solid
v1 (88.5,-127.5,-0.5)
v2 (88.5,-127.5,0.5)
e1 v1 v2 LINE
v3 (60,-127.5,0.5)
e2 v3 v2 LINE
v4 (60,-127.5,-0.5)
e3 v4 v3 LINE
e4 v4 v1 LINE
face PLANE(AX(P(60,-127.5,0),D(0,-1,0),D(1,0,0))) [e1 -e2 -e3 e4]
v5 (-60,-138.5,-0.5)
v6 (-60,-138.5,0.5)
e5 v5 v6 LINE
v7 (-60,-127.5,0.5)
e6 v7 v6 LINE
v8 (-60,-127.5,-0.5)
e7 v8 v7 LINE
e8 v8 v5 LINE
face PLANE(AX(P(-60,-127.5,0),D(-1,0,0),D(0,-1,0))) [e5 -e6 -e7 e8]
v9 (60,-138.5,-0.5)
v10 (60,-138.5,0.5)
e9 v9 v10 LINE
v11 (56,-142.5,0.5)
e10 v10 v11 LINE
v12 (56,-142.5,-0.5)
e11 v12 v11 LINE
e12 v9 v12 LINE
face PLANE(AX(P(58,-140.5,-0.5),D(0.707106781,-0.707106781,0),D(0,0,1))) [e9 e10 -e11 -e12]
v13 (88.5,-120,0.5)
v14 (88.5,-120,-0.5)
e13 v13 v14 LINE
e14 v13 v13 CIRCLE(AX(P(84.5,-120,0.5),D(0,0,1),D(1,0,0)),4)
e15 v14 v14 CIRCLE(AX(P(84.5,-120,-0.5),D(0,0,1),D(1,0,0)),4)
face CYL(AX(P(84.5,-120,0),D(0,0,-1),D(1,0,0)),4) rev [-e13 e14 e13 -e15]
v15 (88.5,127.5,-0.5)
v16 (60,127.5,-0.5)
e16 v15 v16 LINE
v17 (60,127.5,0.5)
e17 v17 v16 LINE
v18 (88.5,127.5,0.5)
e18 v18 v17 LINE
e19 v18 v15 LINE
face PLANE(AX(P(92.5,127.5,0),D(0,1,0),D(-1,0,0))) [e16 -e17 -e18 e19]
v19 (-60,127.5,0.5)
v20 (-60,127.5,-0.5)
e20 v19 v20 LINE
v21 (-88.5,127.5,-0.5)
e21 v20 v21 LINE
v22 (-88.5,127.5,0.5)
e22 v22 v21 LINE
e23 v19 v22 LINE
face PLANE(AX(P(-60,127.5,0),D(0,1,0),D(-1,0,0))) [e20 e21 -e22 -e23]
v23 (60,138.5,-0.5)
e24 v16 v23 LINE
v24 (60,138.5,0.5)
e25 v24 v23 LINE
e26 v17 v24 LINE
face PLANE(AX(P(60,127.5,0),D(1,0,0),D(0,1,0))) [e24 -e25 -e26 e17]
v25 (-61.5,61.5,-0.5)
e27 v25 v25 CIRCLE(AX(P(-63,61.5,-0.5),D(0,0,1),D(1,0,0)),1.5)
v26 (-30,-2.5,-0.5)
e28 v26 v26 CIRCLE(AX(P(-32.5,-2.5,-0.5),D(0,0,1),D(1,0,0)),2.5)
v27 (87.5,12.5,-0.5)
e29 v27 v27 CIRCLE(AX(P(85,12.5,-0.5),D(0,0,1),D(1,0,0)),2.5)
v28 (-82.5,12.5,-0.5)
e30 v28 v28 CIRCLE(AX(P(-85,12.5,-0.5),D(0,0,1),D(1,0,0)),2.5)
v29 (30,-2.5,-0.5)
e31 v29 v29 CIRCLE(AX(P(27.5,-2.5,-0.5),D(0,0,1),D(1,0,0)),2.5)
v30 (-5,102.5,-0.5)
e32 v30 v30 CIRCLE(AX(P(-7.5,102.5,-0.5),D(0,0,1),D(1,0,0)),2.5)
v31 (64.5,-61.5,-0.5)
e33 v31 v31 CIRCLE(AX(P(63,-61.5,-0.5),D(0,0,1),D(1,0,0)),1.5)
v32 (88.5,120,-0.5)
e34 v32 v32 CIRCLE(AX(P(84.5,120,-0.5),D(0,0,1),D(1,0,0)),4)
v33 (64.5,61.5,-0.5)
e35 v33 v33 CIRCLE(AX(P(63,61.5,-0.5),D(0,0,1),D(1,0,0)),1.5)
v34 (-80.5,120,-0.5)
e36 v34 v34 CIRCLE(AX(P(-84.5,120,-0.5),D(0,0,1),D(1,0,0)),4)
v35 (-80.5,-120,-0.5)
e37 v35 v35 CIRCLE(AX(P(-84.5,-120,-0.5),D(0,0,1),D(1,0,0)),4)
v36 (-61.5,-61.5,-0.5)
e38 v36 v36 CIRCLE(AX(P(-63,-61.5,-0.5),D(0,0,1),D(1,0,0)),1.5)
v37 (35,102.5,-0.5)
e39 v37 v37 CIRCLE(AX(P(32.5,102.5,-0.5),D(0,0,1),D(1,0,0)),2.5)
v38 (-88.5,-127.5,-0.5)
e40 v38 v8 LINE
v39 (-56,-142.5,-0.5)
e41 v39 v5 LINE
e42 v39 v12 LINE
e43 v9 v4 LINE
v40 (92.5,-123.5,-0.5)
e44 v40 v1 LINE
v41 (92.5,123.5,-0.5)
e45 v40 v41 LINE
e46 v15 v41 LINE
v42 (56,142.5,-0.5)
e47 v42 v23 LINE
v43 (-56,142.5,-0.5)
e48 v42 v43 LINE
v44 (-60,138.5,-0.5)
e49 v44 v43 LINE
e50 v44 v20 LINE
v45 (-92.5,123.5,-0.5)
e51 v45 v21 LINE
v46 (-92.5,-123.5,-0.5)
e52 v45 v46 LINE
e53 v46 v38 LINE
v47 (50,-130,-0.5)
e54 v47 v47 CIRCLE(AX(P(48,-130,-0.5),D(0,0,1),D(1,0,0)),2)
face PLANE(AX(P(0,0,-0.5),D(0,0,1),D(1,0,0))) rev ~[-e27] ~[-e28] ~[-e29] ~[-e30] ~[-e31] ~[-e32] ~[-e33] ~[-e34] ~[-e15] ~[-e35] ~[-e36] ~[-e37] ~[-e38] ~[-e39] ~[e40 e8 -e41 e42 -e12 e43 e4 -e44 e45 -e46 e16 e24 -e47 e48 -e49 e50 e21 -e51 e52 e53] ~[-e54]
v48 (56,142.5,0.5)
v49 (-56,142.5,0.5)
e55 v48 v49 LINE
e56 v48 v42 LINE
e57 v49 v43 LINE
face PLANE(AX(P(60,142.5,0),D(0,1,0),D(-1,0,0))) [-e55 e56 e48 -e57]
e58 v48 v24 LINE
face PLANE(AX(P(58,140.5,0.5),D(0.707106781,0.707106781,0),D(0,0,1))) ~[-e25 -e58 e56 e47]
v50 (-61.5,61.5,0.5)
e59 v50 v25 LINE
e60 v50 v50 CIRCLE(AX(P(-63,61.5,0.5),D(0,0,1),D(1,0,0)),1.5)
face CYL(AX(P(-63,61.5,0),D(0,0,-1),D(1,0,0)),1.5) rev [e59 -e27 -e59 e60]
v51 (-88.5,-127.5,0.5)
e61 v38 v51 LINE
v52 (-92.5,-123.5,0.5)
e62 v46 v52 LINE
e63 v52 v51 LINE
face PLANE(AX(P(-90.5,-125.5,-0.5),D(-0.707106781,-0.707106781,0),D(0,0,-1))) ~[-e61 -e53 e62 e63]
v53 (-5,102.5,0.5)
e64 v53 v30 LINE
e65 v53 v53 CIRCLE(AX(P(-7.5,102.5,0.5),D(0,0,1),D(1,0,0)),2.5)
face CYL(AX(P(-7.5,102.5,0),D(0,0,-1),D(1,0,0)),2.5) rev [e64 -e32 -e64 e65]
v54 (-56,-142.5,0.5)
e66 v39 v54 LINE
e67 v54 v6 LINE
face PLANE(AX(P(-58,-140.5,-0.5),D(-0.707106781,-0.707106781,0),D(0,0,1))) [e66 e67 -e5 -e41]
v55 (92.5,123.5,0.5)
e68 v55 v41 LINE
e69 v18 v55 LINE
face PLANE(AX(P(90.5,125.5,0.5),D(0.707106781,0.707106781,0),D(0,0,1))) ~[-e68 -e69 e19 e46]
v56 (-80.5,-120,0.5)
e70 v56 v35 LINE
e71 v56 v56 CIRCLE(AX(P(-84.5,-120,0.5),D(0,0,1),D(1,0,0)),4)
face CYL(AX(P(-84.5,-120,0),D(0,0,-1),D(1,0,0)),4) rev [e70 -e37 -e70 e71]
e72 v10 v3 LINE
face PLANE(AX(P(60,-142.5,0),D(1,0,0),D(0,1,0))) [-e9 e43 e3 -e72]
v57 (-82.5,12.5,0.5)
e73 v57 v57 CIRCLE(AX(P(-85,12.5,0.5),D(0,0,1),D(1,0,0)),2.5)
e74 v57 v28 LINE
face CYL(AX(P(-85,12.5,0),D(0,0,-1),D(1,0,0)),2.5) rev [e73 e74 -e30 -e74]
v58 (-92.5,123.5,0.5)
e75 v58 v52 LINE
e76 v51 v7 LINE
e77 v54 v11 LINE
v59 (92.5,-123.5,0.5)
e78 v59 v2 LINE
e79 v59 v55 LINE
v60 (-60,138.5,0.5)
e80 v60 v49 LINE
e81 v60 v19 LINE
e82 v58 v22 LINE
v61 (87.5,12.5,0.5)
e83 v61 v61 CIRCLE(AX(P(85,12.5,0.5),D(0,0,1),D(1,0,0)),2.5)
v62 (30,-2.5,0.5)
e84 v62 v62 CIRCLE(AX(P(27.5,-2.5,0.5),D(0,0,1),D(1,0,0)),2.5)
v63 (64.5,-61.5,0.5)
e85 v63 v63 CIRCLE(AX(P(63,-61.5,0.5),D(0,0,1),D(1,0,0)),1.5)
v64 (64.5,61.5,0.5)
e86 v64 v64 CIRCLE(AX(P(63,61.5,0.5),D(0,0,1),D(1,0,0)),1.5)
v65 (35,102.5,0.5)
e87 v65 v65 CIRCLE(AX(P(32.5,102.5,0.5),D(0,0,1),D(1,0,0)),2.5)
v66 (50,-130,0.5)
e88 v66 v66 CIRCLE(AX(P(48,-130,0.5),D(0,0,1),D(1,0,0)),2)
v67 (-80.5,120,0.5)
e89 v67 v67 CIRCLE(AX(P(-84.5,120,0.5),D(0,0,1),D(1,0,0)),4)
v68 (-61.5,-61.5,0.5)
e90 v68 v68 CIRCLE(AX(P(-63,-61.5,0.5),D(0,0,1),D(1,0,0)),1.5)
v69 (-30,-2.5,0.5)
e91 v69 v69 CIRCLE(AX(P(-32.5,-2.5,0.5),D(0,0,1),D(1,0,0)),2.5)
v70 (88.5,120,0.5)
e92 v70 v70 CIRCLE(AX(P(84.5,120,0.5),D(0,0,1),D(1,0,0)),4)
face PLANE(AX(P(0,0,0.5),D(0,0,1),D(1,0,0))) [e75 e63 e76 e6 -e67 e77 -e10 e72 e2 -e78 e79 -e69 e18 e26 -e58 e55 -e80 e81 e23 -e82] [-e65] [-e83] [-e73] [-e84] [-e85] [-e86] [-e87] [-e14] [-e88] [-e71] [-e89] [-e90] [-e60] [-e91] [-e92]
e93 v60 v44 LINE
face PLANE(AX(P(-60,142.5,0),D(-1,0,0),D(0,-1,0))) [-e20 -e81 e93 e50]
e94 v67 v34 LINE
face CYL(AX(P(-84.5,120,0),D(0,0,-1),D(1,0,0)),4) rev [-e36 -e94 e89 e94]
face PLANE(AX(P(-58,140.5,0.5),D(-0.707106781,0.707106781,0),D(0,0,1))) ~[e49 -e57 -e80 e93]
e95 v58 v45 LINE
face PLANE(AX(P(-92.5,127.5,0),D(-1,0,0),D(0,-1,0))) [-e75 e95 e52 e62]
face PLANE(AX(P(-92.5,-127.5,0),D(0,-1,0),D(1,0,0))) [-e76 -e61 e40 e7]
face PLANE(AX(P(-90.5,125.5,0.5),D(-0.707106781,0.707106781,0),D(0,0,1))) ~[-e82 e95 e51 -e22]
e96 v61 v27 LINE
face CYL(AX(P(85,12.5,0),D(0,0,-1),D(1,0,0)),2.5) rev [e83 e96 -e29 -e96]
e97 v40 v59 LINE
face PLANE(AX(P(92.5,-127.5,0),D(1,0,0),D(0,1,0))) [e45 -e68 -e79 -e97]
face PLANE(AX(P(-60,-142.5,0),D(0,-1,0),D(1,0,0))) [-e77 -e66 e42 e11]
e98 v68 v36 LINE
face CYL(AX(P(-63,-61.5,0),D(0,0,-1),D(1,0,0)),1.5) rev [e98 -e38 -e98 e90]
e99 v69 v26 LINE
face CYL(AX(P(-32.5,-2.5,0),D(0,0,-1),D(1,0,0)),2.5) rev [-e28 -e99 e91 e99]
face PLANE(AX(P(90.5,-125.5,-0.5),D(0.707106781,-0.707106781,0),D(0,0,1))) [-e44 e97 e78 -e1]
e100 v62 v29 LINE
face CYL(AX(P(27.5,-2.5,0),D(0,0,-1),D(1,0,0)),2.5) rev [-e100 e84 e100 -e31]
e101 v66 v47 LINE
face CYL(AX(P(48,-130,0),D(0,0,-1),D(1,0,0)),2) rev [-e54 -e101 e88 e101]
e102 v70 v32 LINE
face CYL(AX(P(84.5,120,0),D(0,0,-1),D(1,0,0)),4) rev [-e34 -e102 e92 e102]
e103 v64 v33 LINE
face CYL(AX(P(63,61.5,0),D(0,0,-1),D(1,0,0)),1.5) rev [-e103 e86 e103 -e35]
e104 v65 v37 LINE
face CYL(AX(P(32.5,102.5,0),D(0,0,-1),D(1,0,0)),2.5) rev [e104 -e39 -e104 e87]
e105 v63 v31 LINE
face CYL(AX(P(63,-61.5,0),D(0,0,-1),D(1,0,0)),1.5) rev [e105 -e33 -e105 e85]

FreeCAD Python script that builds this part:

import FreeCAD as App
import Part
import Sketcher

V = App.Vector
Q = App.Units.Quantity


def edges_at(feature, points):
    """Names of the edges that pass closest to the given points."""
    edges = feature.Shape.Edges
    near = lambda p: min(range(len(edges)), key=lambda i: edges[i].distToShape(Part.Vertex(*p))[0])
    return sorted({f"Edge{near(p) + 1}" for p in points})

doc = App.newDocument("Part")
body = doc.addObject("PartDesign::Body", "Body")

# Sketch on XY plane
sketch1 = doc.addObject("Sketcher::SketchObject", "Sketch")
body.addObject(sketch1)
sketch1.AttachmentSupport = (doc.XY_Plane, [""])
sketch1.MapMode = "FlatFace"
sketch1.addGeometry([
    Part.LineSegment(V(-92.5, 127.5, 0), V(-92.5, -127.5, 0)),  # 0
    Part.LineSegment(V(-92.5, -127.5, 0), V(-60, -127.5, 0)),  # 1
    Part.LineSegment(V(-60, -127.5, 0), V(-60, -142.5, 0)),  # 2
    Part.LineSegment(V(-60, -142.5, 0), V(60, -142.5, 0)),  # 3
    Part.LineSegment(V(60, -142.5, 0), V(60, -127.5, 0)),  # 4
    Part.LineSegment(V(60, -127.5, 0), V(92.5, -127.5, 0)),  # 5
    Part.LineSegment(V(92.5, -127.5, 0), V(92.5, 127.5, 0)),  # 6
    Part.LineSegment(V(92.5, 127.5, 0), V(60, 127.5, 0)),  # 7
    Part.LineSegment(V(60, 127.5, 0), V(60, 142.5, 0)),  # 8
    Part.LineSegment(V(60, 142.5, 0), V(-60, 142.5, 0)),  # 9
    Part.LineSegment(V(-60, 142.5, 0), V(-60, 127.5, 0)),  # 10
    Part.LineSegment(V(-60, 127.5, 0), V(-92.5, 127.5, 0)),  # 11
    Part.Circle(V(-84.5, -120, 0), V(0, 0, 1), 4),  # 12
    Part.Circle(V(-63, -61.5, 0), V(0, 0, 1), 1.5),  # 13
    Part.Circle(V(48, -130, 0), V(0, 0, 1), 2),  # 14
    Part.Circle(V(84.5, -120, 0), V(0, 0, 1), 4),  # 15
    Part.Circle(V(63, -61.5, 0), V(0, 0, 1), 1.5),  # 16
    Part.Circle(V(-85, 12.5, 0), V(0, 0, 1), 2.5),  # 17
    Part.Circle(V(-32.5, -2.5, 0), V(0, 0, 1), 2.5),  # 18
    Part.Circle(V(-63, 61.5, 0), V(0, 0, 1), 1.5),  # 19
    Part.Circle(V(-84.5, 120, 0), V(0, 0, 1), 4),  # 20
    Part.Circle(V(-7.5, 102.5, 0), V(0, 0, 1), 2.5),  # 21
    Part.Circle(V(27.5, -2.5, 0), V(0, 0, 1), 2.5),  # 22
    Part.Circle(V(85, 12.5, 0), V(0, 0, 1), 2.5),  # 23
    Part.Circle(V(32.5, 102.5, 0), V(0, 0, 1), 2.5),  # 24
    Part.Circle(V(63, 61.5, 0), V(0, 0, 1), 1.5),  # 25
    Part.Circle(V(84.5, 120, 0), V(0, 0, 1), 4),  # 26
], False)
sketch1.addConstraint([
    Sketcher.Constraint("Coincident", 0, 2, 1, 1),
    Sketcher.Constraint("Coincident", 1, 2, 2, 1),
    Sketcher.Constraint("Coincident", 2, 2, 3, 1),
    Sketcher.Constraint("Coincident", 3, 2, 4, 1),
    Sketcher.Constraint("Coincident", 4, 2, 5, 1),
    Sketcher.Constraint("Coincident", 5, 2, 6, 1),
    Sketcher.Constraint("Coincident", 6, 2, 7, 1),
    Sketcher.Constraint("Coincident", 7, 2, 8, 1),
    Sketcher.Constraint("Coincident", 8, 2, 9, 1),
    Sketcher.Constraint("Coincident", 9, 2, 10, 1),
    Sketcher.Constraint("Coincident", 10, 2, 11, 1),
    Sketcher.Constraint("Coincident", 11, 2, 0, 1),
    Sketcher.Constraint("Vertical", 0),
    Sketcher.Constraint("Horizontal", 1),
    Sketcher.Constraint("Vertical", 2),
    Sketcher.Constraint("Horizontal", 3),
    Sketcher.Constraint("Vertical", 4),
    Sketcher.Constraint("Horizontal", 5),
    Sketcher.Constraint("Vertical", 6),
    Sketcher.Constraint("Horizontal", 7),
    Sketcher.Constraint("Vertical", 8),
    Sketcher.Constraint("Horizontal", 9),
    Sketcher.Constraint("Vertical", 10),
    Sketcher.Constraint("Horizontal", 11),
    Sketcher.Constraint("Equal", 12, 15),
    Sketcher.Constraint("Equal", 13, 16),
    Sketcher.Constraint("Equal", 17, 18),
    Sketcher.Constraint("Equal", 16, 19),
    Sketcher.Constraint("Equal", 15, 20),
    Sketcher.Constraint("Equal", 18, 21),
    Sketcher.Constraint("Equal", 21, 22),
    Sketcher.Constraint("Equal", 22, 23),
    Sketcher.Constraint("Equal", 23, 24),
    Sketcher.Constraint("Equal", 19, 25),
    Sketcher.Constraint("Equal", 20, 26),
    Sketcher.Constraint("Symmetric", 16, 3, 19, 3, -1, 1),
    Sketcher.Constraint("Symmetric", 15, 3, 20, 3, -1, 1),
    Sketcher.Constraint("Symmetric", 13, 3, 25, 3, -1, 1),
    Sketcher.Constraint("Symmetric", 12, 3, 26, 3, -1, 1),
    Sketcher.Constraint("Symmetric", 0, 2, 6, 2, -1, 1),
    Sketcher.Constraint("Symmetric", 2, 2, 8, 2, -1, 1),
    Sketcher.Constraint("Symmetric", 4, 2, 10, 2, -1, 1),
    Sketcher.Constraint("Symmetric", 12, 3, 15, 3, -2),
    Sketcher.Constraint("Symmetric", 13, 3, 16, 3, -2),
    Sketcher.Constraint("Symmetric", 17, 3, 23, 3, -2),
    Sketcher.Constraint("Symmetric", 1, 2, 4, 2, -2),
    Sketcher.Constraint("Horizontal", 18, 3, 22, 3),
    Sketcher.Constraint("Horizontal", 21, 3, 24, 3),
    Sketcher.Constraint("Diameter", 12, Q("8 mm")),
    Sketcher.Constraint("Diameter", 13, Q("3 mm")),
    Sketcher.Constraint("Diameter", 14, Q("4 mm")),
    Sketcher.Constraint("Diameter", 17, Q("5 mm")),
    Sketcher.Constraint("DistanceX", 3, 1, 3, 2, Q("120 mm")),
    Sketcher.Constraint("DistanceY", 0, 2, 0, 1, Q("255 mm")),
    Sketcher.Constraint("DistanceY", 2, 2, 2, 1, Q("15 mm")),
    Sketcher.Constraint("DistanceX", 1, 1, 1, 2, Q("32.5 mm")),
    Sketcher.Constraint("DistanceY", 12, 3, -1, 1, Q("120 mm")),
    Sketcher.Constraint("DistanceX", 13, 3, -1, 1, Q("63 mm")),
    Sketcher.Constraint("DistanceX", -1, 1, 14, 3, Q("48 mm")),
    Sketcher.Constraint("DistanceY", 14, 3, -1, 1, Q("130 mm")),
    Sketcher.Constraint("DistanceX", 17, 3, -1, 1, Q("85 mm")),
    Sketcher.Constraint("DistanceX", 12, 3, 15, 3, Q("169 mm")),
    Sketcher.Constraint("DistanceY", 13, 3, 17, 3, Q("74 mm")),
    Sketcher.Constraint("DistanceY", 18, 3, 17, 3, Q("15 mm")),
    Sketcher.Constraint("DistanceX", 12, 3, 18, 3, Q("52 mm")),
    Sketcher.Constraint("DistanceY", 17, 3, 19, 3, Q("49 mm")),
    Sketcher.Constraint("DistanceY", 19, 3, 21, 3, Q("41 mm")),
    Sketcher.Constraint("DistanceX", 20, 3, 21, 3, Q("77 mm")),
    Sketcher.Constraint("DistanceX", 18, 3, 22, 3, Q("60 mm")),
    Sketcher.Constraint("DistanceX", 21, 3, 24, 3, Q("40 mm")),
])
pad1 = doc.addObject("PartDesign::Pad", "Pad")
body.addObject(pad1)
pad1.Profile = sketch1
pad1.Length = 1
pad1.Midplane = True
doc.recompute()

chamfer = doc.addObject("PartDesign::Chamfer", "Chamfer")
body.addObject(chamfer)
chamfer.Base = (pad1, edges_at(pad1, [
    (-92.5, 127.5, 0),
    (-60, 142.5, 0),
    (60, 142.5, 0),
    (92.5, 127.5, 0),
    (92.5, -127.5, 0),
    (60, -142.5, 0),
    (-60, -142.5, 0),
    (-92.5, -127.5, 0),
]))
chamfer.Size = 4

doc.recompute()
